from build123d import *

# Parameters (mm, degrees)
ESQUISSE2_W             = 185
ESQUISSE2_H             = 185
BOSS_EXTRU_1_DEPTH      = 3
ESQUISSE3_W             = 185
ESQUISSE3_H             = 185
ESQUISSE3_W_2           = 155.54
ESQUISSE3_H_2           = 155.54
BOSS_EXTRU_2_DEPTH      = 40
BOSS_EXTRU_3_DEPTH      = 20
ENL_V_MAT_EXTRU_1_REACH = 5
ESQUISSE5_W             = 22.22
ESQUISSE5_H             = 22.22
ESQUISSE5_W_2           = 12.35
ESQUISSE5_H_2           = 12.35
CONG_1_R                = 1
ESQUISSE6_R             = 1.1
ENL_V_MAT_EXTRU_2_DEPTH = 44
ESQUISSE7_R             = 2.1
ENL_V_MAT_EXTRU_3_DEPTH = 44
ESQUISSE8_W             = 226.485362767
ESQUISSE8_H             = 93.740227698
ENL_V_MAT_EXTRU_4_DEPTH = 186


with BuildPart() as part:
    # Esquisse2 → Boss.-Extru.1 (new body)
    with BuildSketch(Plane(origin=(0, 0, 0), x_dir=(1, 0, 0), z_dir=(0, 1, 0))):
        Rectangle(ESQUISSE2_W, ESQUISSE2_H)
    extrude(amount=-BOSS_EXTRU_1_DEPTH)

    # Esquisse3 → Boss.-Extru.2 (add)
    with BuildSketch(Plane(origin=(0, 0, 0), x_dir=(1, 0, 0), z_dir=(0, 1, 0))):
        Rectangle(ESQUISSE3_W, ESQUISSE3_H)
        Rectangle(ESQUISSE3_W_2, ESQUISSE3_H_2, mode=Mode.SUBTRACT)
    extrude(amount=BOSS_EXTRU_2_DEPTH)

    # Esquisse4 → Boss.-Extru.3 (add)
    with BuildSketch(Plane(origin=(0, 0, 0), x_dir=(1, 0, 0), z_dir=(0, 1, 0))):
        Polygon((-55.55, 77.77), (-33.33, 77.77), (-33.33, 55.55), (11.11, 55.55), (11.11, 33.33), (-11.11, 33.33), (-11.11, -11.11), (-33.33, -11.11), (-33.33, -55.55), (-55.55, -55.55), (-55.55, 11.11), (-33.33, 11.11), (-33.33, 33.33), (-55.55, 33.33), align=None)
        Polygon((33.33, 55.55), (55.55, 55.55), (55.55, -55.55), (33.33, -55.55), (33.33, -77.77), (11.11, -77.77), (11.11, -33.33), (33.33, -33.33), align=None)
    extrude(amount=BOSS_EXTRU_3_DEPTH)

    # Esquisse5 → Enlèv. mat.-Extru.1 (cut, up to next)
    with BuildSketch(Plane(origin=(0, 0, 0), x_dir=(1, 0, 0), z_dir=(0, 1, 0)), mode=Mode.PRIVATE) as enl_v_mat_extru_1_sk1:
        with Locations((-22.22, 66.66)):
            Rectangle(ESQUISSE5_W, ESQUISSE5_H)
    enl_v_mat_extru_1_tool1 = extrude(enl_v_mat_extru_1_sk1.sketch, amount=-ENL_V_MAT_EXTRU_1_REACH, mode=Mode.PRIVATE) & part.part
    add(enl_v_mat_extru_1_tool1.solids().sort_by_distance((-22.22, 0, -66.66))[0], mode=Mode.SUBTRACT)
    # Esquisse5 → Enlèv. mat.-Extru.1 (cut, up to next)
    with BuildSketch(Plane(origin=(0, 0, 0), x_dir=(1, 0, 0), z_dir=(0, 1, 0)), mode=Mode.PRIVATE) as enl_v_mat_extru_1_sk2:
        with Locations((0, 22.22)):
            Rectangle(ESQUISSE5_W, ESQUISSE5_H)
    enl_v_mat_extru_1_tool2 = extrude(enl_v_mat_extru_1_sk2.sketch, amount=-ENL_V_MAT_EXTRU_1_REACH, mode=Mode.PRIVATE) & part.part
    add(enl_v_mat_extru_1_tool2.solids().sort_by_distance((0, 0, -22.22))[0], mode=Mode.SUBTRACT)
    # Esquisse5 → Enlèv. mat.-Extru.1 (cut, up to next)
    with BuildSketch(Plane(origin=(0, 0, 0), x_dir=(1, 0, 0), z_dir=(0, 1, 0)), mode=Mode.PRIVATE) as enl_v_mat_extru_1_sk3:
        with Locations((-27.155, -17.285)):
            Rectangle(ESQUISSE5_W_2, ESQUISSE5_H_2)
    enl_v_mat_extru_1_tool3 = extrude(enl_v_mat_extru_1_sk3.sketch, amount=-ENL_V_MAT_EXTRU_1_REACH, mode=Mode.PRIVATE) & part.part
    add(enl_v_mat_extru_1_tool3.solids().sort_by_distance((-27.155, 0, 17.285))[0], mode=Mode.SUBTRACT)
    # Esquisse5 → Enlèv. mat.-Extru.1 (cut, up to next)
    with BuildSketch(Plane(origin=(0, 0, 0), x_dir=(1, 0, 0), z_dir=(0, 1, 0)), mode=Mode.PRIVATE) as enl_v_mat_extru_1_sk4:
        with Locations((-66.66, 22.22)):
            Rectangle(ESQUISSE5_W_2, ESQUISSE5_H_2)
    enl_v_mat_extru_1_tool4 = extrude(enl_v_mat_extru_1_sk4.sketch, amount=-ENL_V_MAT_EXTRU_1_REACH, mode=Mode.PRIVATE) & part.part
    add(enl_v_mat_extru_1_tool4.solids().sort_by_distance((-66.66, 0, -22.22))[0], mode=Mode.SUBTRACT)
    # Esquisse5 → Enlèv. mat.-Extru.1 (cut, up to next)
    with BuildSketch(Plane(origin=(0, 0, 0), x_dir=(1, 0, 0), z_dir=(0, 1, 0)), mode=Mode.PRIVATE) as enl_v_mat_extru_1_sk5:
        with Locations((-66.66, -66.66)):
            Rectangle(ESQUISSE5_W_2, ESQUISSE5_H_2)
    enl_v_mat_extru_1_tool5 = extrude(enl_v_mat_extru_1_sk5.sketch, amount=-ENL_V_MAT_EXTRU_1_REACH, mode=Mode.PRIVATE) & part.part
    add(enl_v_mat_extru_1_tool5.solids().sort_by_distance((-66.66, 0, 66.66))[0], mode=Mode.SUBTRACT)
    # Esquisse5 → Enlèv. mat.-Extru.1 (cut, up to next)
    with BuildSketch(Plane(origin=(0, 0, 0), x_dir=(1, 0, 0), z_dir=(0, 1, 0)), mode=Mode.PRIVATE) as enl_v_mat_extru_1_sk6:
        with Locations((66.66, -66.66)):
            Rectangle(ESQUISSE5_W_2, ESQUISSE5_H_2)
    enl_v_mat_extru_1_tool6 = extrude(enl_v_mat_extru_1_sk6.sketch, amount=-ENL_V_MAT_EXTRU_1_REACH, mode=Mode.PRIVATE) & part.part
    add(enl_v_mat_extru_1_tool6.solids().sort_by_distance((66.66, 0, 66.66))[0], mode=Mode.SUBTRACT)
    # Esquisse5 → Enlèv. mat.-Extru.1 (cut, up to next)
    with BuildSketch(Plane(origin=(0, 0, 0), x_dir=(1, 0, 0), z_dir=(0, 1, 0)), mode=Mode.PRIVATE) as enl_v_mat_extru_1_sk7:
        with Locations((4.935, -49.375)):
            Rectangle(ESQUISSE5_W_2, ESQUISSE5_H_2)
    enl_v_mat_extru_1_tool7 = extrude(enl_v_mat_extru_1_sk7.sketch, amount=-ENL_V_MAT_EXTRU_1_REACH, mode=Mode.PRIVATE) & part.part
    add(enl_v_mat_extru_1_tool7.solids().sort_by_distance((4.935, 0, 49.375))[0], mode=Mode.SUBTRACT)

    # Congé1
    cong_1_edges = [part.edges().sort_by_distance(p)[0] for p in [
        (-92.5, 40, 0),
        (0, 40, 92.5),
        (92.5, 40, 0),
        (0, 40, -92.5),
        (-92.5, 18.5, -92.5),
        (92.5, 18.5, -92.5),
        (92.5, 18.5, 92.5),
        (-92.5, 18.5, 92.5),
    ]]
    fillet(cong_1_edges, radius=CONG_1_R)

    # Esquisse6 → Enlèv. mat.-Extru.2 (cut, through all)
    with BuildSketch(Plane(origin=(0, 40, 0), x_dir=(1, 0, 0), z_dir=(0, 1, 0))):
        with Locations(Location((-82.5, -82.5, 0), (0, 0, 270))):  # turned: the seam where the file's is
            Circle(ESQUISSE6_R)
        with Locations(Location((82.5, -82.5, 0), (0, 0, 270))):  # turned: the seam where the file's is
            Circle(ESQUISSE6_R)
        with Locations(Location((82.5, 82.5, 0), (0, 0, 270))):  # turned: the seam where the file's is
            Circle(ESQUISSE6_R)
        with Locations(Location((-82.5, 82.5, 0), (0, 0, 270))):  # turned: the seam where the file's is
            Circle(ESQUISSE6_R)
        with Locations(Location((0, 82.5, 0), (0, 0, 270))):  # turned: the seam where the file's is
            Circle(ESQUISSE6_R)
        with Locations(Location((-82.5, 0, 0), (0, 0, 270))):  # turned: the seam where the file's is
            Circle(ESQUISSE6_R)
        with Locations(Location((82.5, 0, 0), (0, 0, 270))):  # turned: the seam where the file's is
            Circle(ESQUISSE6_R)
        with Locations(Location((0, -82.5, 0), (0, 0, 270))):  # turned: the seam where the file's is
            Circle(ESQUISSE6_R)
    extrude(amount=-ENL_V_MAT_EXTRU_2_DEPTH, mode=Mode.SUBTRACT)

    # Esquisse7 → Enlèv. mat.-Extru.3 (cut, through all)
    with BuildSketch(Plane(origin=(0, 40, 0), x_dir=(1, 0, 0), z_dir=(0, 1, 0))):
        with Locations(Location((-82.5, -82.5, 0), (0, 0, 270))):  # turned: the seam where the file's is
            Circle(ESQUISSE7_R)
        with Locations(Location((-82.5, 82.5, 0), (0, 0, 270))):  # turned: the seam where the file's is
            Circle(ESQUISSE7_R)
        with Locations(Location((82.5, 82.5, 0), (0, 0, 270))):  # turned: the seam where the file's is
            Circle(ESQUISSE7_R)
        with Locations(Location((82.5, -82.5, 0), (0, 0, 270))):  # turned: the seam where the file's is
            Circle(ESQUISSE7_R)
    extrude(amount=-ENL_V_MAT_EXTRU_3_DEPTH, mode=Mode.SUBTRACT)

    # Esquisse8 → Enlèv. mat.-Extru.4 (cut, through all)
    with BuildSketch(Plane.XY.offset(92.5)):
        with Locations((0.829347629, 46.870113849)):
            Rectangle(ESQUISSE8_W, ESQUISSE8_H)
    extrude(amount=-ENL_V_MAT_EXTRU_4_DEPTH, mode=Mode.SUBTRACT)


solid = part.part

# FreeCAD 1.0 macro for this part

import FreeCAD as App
import Part
import Sketcher


def edges_at(feature, points):
    """Names of the edges that pass closest to the given points."""
    edges = feature.Shape.Edges
    near = lambda p: min(range(len(edges)), key=lambda i: edges[i].distToShape(Part.Vertex(*p))[0])
    return sorted({f"Edge{near(p) + 1}" for p in points})

doc = App.newDocument("Part")
params = doc.addObject("Spreadsheet::Sheet", "Params")
for row, (alias, value) in enumerate([
    ("sketch1_width", "185 mm"),
    ("pad1_length", "3 mm"),
    ("sketch2_width", "185 mm"),
    ("sketch2_width2", "155.54 mm"),
    ("pad2_length", "40 mm"),
    ("sketch3_height", "111.1 mm"),
    ("pad3_length", "20 mm"),
    ("sketch4_width", "22.22 mm"),
    ("sketch5_width", "22.22 mm"),
    ("sketch6_width", "12.35 mm"),
    ("sketch7_width", "12.35 mm"),
    ("sketch8_width", "12.35 mm"),
    ("sketch9_width", "12.35 mm"),
    ("sketch10_width", "12.35 mm"),
    ("fillet_radius", "1 mm"),
    ("sketch11_diameter", "2.2 mm"),
    ("sketch12_diameter", "4.2 mm"),
], start=1):
    params.set(f"A{row}", alias)
    params.set(f"B{row}", "=" + value)
    params.setAlias(f"B{row}", alias)

body = doc.addObject("PartDesign::Body", "Body")

# Sketch on XZ plane
sketch1 = doc.addObject("Sketcher::SketchObject", "Sketch")
body.addObject(sketch1)
sketch1.AttachmentSupport = (doc.XZ_Plane, [""])
sketch1.MapMode = "FlatFace"
sketch1.addGeometry(Part.LineSegment(App.Vector(-92.5, -92.5, 0), App.Vector(-92.5, 92.5, 0)), False)
sketch1.addGeometry(Part.LineSegment(App.Vector(-92.5, 92.5, 0), App.Vector(92.5, 92.5, 0)), False)
sketch1.addGeometry(Part.LineSegment(App.Vector(92.5, 92.5, 0), App.Vector(92.5, -92.5, 0)), False)
sketch1.addGeometry(Part.LineSegment(App.Vector(92.5, -92.5, 0), App.Vector(-92.5, -92.5, 0)), False)
sketch1.addConstraint(Sketcher.Constraint("Coincident", 0, 2, 1, 1))
sketch1.addConstraint(Sketcher.Constraint("Coincident", 1, 2, 2, 1))
sketch1.addConstraint(Sketcher.Constraint("Coincident", 2, 2, 3, 1))
sketch1.addConstraint(Sketcher.Constraint("Coincident", 3, 2, 0, 1))
sketch1.addConstraint(Sketcher.Constraint("Vertical", 0))
sketch1.addConstraint(Sketcher.Constraint("Horizontal", 1))
sketch1.addConstraint(Sketcher.Constraint("Vertical", 2))
sketch1.addConstraint(Sketcher.Constraint("Horizontal", 3))
sketch1.addConstraint(Sketcher.Constraint("Symmetric", 0, 2, 2, 2, -1, 1))
sketch1.addConstraint(Sketcher.Constraint("Equal", 3, 0))
sketch1.addConstraint(Sketcher.Constraint("DistanceX", 1, 1, 1, 2, 185.0))
sketch1.setExpression("Constraints[10]", "Params.sketch1_width")
pad1 = doc.addObject("PartDesign::Pad", "Pad")
body.addObject(pad1)
pad1.Profile = sketch1
pad1.setExpression("Length", "Params.pad1_length")

# Sketch on XZ plane
sketch2 = doc.addObject("Sketcher::SketchObject", "Sketch001")
body.addObject(sketch2)
sketch2.AttachmentSupport = (doc.XZ_Plane, [""])
sketch2.MapMode = "FlatFace"
sketch2.addGeometry(Part.LineSegment(App.Vector(-92.5, -92.5, 0), App.Vector(-92.5, 92.5, 0)), False)
sketch2.addGeometry(Part.LineSegment(App.Vector(-92.5, 92.5, 0), App.Vector(92.5, 92.5, 0)), False)
sketch2.addGeometry(Part.LineSegment(App.Vector(92.5, 92.5, 0), App.Vector(92.5, -92.5, 0)), False)
sketch2.addGeometry(Part.LineSegment(App.Vector(92.5, -92.5, 0), App.Vector(-92.5, -92.5, 0)), False)
sketch2.addGeometry(Part.LineSegment(App.Vector(77.77, 77.77, 0), App.Vector(-77.77, 77.77, 0)), False)
sketch2.addGeometry(Part.LineSegment(App.Vector(-77.77, 77.77, 0), App.Vector(-77.77, -77.77, 0)), False)
sketch2.addGeometry(Part.LineSegment(App.Vector(-77.77, -77.77, 0), App.Vector(77.77, -77.77, 0)), False)
sketch2.addGeometry(Part.LineSegment(App.Vector(77.77, -77.77, 0), App.Vector(77.77, 77.77, 0)), False)
sketch2.addConstraint(Sketcher.Constraint("Coincident", 0, 2, 1, 1))
sketch2.addConstraint(Sketcher.Constraint("Coincident", 1, 2, 2, 1))
sketch2.addConstraint(Sketcher.Constraint("Coincident", 2, 2, 3, 1))
sketch2.addConstraint(Sketcher.Constraint("Coincident", 3, 2, 0, 1))
sketch2.addConstraint(Sketcher.Constraint("Coincident", 4, 2, 5, 1))
sketch2.addConstraint(Sketcher.Constraint("Coincident", 5, 2, 6, 1))
sketch2.addConstraint(Sketcher.Constraint("Coincident", 6, 2, 7, 1))
sketch2.addConstraint(Sketcher.Constraint("Coincident", 7, 2, 4, 1))
sketch2.addConstraint(Sketcher.Constraint("Vertical", 0))
sketch2.addConstraint(Sketcher.Constraint("Horizontal", 1))
sketch2.addConstraint(Sketcher.Constraint("Vertical", 2))
sketch2.addConstraint(Sketcher.Constraint("Horizontal", 3))
sketch2.addConstraint(Sketcher.Constraint("Horizontal", 4))
sketch2.addConstraint(Sketcher.Constraint("Vertical", 5))
sketch2.addConstraint(Sketcher.Constraint("Horizontal", 6))
sketch2.addConstraint(Sketcher.Constraint("Vertical", 7))
sketch2.addConstraint(Sketcher.Constraint("Symmetric", 0, 2, 2, 2, -1, 1))
sketch2.addConstraint(Sketcher.Constraint("Symmetric", 4, 2, 6, 2, -1, 1))
sketch2.addConstraint(Sketcher.Constraint("Equal", 3, 0))
sketch2.addConstraint(Sketcher.Constraint("Equal", 6, 5))
sketch2.addConstraint(Sketcher.Constraint("DistanceX", 1, 1, 1, 2, 185.0))
sketch2.addConstraint(Sketcher.Constraint("DistanceX", 4, 2, 4, 1, 155.54))
sketch2.setExpression("Constraints[20]", "Params.sketch2_width")
sketch2.setExpression("Constraints[21]", "Params.sketch2_width2")
pad2 = doc.addObject("PartDesign::Pad", "Pad001")
body.addObject(pad2)
pad2.Profile = sketch2
pad2.setExpression("Length", "Params.pad2_length")
pad2.Reversed = True

# Sketch on XZ plane
sketch3 = doc.addObject("Sketcher::SketchObject", "Sketch002")
body.addObject(sketch3)
sketch3.AttachmentSupport = (doc.XZ_Plane, [""])
sketch3.MapMode = "FlatFace"
sketch3.addGeometry(Part.LineSegment(App.Vector(-33.33, -77.77, 0), App.Vector(-55.55, -77.77, 0)), False)
sketch3.addGeometry(Part.LineSegment(App.Vector(-55.55, -77.77, 0), App.Vector(-55.55, -33.33, 0)), False)
sketch3.addGeometry(Part.LineSegment(App.Vector(-55.55, -33.33, 0), App.Vector(-33.33, -33.33, 0)), False)
sketch3.addGeometry(Part.LineSegment(App.Vector(-33.33, -33.33, 0), App.Vector(-33.33, -11.11, 0)), False)
sketch3.addGeometry(Part.LineSegment(App.Vector(-33.33, -11.11, 0), App.Vector(-55.55, -11.11, 0)), False)
sketch3.addGeometry(Part.LineSegment(App.Vector(-55.55, -11.11, 0), App.Vector(-55.55, 55.55, 0)), False)
sketch3.addGeometry(Part.LineSegment(App.Vector(-55.55, 55.55, 0), App.Vector(-33.33, 55.55, 0)), False)
sketch3.addGeometry(Part.LineSegment(App.Vector(-33.33, 55.55, 0), App.Vector(-33.33, 11.11, 0)), False)
sketch3.addGeometry(Part.LineSegment(App.Vector(-33.33, 11.11, 0), App.Vector(-11.11, 11.11, 0)), False)
sketch3.addGeometry(Part.LineSegment(App.Vector(-11.11, 11.11, 0), App.Vector(-11.11, -33.33, 0)), False)
sketch3.addGeometry(Part.LineSegment(App.Vector(-11.11, -33.33, 0), App.Vector(11.11, -33.33, 0)), False)
sketch3.addGeometry(Part.LineSegment(App.Vector(11.11, -33.33, 0), App.Vector(11.11, -55.55, 0)), False)
sketch3.addGeometry(Part.LineSegment(App.Vector(11.11, -55.55, 0), App.Vector(-33.33, -55.55, 0)), False)
sketch3.addGeometry(Part.LineSegment(App.Vector(-33.33, -55.55, 0), App.Vector(-33.33, -77.77, 0)), False)
sketch3.addGeometry(Part.LineSegment(App.Vector(55.55, -55.55, 0), App.Vector(33.33, -55.55, 0)), False)
sketch3.addGeometry(Part.LineSegment(App.Vector(33.33, -55.55, 0), App.Vector(33.33, 33.33, 0)), False)
sketch3.addGeometry(Part.LineSegment(App.Vector(33.33, 33.33, 0), App.Vector(11.11, 33.33, 0)), False)
sketch3.addGeometry(Part.LineSegment(App.Vector(11.11, 33.33, 0), App.Vector(11.11, 77.77, 0)), False)
sketch3.addGeometry(Part.LineSegment(App.Vector(11.11, 77.77, 0), App.Vector(33.33, 77.77, 0)), False)
sketch3.addGeometry(Part.LineSegment(App.Vector(33.33, 77.77, 0), App.Vector(33.33, 55.55, 0)), False)
sketch3.addGeometry(Part.LineSegment(App.Vector(33.33, 55.55, 0), App.Vector(55.55, 55.55, 0)), False)
sketch3.addGeometry(Part.LineSegment(App.Vector(55.55, 55.55, 0), App.Vector(55.55, -55.55, 0)), False)
sketch3.addConstraint(Sketcher.Constraint("Coincident", 0, 2, 1, 1))
sketch3.addConstraint(Sketcher.Constraint("Coincident", 1, 2, 2, 1))
sketch3.addConstraint(Sketcher.Constraint("Coincident", 2, 2, 3, 1))
sketch3.addConstraint(Sketcher.Constraint("Coincident", 3, 2, 4, 1))
sketch3.addConstraint(Sketcher.Constraint("Coincident", 4, 2, 5, 1))
sketch3.addConstraint(Sketcher.Constraint("Coincident", 5, 2, 6, 1))
sketch3.addConstraint(Sketcher.Constraint("Coincident", 6, 2, 7, 1))
sketch3.addConstraint(Sketcher.Constraint("Coincident", 7, 2, 8, 1))
sketch3.addConstraint(Sketcher.Constraint("Coincident", 8, 2, 9, 1))
sketch3.addConstraint(Sketcher.Constraint("Coincident", 9, 2, 10, 1))
sketch3.addConstraint(Sketcher.Constraint("Coincident", 10, 2, 11, 1))
sketch3.addConstraint(Sketcher.Constraint("Coincident", 11, 2, 12, 1))
sketch3.addConstraint(Sketcher.Constraint("Coincident", 12, 2, 13, 1))
sketch3.addConstraint(Sketcher.Constraint("Coincident", 13, 2, 0, 1))
sketch3.addConstraint(Sketcher.Constraint("Coincident", 14, 2, 15, 1))
sketch3.addConstraint(Sketcher.Constraint("Coincident", 15, 2, 16, 1))
sketch3.addConstraint(Sketcher.Constraint("Coincident", 16, 2, 17, 1))
sketch3.addConstraint(Sketcher.Constraint("Coincident", 17, 2, 18, 1))
sketch3.addConstraint(Sketcher.Constraint("Coincident", 18, 2, 19, 1))
sketch3.addConstraint(Sketcher.Constraint("Coincident", 19, 2, 20, 1))
sketch3.addConstraint(Sketcher.Constraint("Coincident", 20, 2, 21, 1))
sketch3.addConstraint(Sketcher.Constraint("Coincident", 21, 2, 14, 1))
sketch3.addConstraint(Sketcher.Constraint("Horizontal", 0))
sketch3.addConstraint(Sketcher.Constraint("Vertical", 1))
sketch3.addConstraint(Sketcher.Constraint("Horizontal", 2))
sketch3.addConstraint(Sketcher.Constraint("Vertical", 3))
sketch3.addConstraint(Sketcher.Constraint("Horizontal", 4))
sketch3.addConstraint(Sketcher.Constraint("Vertical", 5))
sketch3.addConstraint(Sketcher.Constraint("Horizontal", 6))
sketch3.addConstraint(Sketcher.Constraint("Vertical", 7))
sketch3.addConstraint(Sketcher.Constraint("Horizontal", 8))
sketch3.addConstraint(Sketcher.Constraint("Vertical", 9))
sketch3.addConstraint(Sketcher.Constraint("Horizontal", 10))
sketch3.addConstraint(Sketcher.Constraint("Vertical", 11))
sketch3.addConstraint(Sketcher.Constraint("Horizontal", 12))
sketch3.addConstraint(Sketcher.Constraint("Vertical", 13))
sketch3.addConstraint(Sketcher.Constraint("Horizontal", 14))
sketch3.addConstraint(Sketcher.Constraint("Vertical", 15))
sketch3.addConstraint(Sketcher.Constraint("Horizontal", 16))
sketch3.addConstraint(Sketcher.Constraint("Vertical", 17))
sketch3.addConstraint(Sketcher.Constraint("Horizontal", 18))
sketch3.addConstraint(Sketcher.Constraint("Vertical", 19))
sketch3.addConstraint(Sketcher.Constraint("Horizontal", 20))
sketch3.addConstraint(Sketcher.Constraint("Vertical", 21))
sketch3.addConstraint(Sketcher.Constraint("Symmetric", 6, 2, 14, 2, -1, 1))
sketch3.addConstraint(Sketcher.Constraint("Symmetric", 2, 2, 15, 2, -1, 1))
sketch3.addConstraint(Sketcher.Constraint("Symmetric", 9, 2, 16, 2, -1, 1))
sketch3.addConstraint(Sketcher.Constraint("Symmetric", 13, 2, 18, 2, -1, 1))
sketch3.addConstraint(Sketcher.Constraint("Symmetric", 12, 2, 14, 2, -2))
sketch3.addConstraint(Sketcher.Constraint("Symmetric", 5, 2, 20, 2, -2))
sketch3.addConstraint(Sketcher.Constraint("Vertical", 1, 2, 4, 2))
sketch3.addConstraint(Sketcher.Constraint("Vertical", 11, 2, 16, 2))
sketch3.addConstraint(Sketcher.Constraint("Equal", 6, 8))
sketch3.addConstraint(Sketcher.Constraint("Equal", 8, 10))
sketch3.addConstraint(Sketcher.Constraint("Equal", 12, 1))
sketch3.addConstraint(Sketcher.Constraint("Equal", 20, 3))
sketch3.addConstraint(Sketcher.Constraint("Equal", 1, 7))
sketch3.addConstraint(Sketcher.Constraint("Equal", 7, 9))
sketch3.addConstraint(Sketcher.Constraint("Equal", 3, 11))
sketch3.addConstraint(Sketcher.Constraint("DistanceY", 21, 2, 21, 1, 111.1))
sketch3.setExpression("Constraints[59]", "Params.sketch3_height")
pad3 = doc.addObject("PartDesign::Pad", "Pad002")
body.addObject(pad3)
pad3.Profile = sketch3
pad3.setExpression("Length", "Params.pad3_length")
pad3.Reversed = True

# Sketch on XZ plane
sketch4 = doc.addObject("Sketcher::SketchObject", "Sketch003")
body.addObject(sketch4)
sketch4.AttachmentSupport = (doc.XZ_Plane, [""])
sketch4.MapMode = "FlatFace"
sketch4.addGeometry(Part.LineSegment(App.Vector(-33.33, -77.77, 0), App.Vector(-33.33, -55.55, 0)), False)
sketch4.addGeometry(Part.LineSegment(App.Vector(-33.33, -55.55, 0), App.Vector(-11.11, -55.55, 0)), False)
sketch4.addGeometry(Part.LineSegment(App.Vector(-11.11, -55.55, 0), App.Vector(-11.11, -77.77, 0)), False)
sketch4.addGeometry(Part.LineSegment(App.Vector(-11.11, -77.77, 0), App.Vector(-33.33, -77.77, 0)), False)
sketch4.addConstraint(Sketcher.Constraint("Coincident", 0, 2, 1, 1))
sketch4.addConstraint(Sketcher.Constraint("Coincident", 1, 2, 2, 1))
sketch4.addConstraint(Sketcher.Constraint("Coincident", 2, 2, 3, 1))
sketch4.addConstraint(Sketcher.Constraint("Coincident", 3, 2, 0, 1))
sketch4.addConstraint(Sketcher.Constraint("Vertical", 0))
sketch4.addConstraint(Sketcher.Constraint("Horizontal", 1))
sketch4.addConstraint(Sketcher.Constraint("Vertical", 2))
sketch4.addConstraint(Sketcher.Constraint("Horizontal", 3))
sketch4.addConstraint(Sketcher.Constraint("Equal", 3, 0))
sketch4.addConstraint(Sketcher.Constraint("DistanceX", 1, 1, 1, 2, 22.22))
sketch4.addConstraint(Sketcher.Constraint("DistanceX", 0, 2, -1, 1, 33.33))
sketch4.addConstraint(Sketcher.Constraint("DistanceY", 0, 2, -1, 1, 55.55))
sketch4.setExpression("Constraints[9]", "Params.sketch4_width")
pocket1 = doc.addObject("PartDesign::Pocket", "Pocket")
body.addObject(pocket1)
pocket1.Profile = sketch4
pocket1.Type = "UpToFirst"
pocket1.Reversed = True

# Sketch on XZ plane
sketch5 = doc.addObject("Sketcher::SketchObject", "Sketch004")
body.addObject(sketch5)
sketch5.AttachmentSupport = (doc.XZ_Plane, [""])
sketch5.MapMode = "FlatFace"
sketch5.addGeometry(Part.LineSegment(App.Vector(-11.11, -33.33, 0), App.Vector(-11.11, -11.11, 0)), False)
sketch5.addGeometry(Part.LineSegment(App.Vector(-11.11, -11.11, 0), App.Vector(11.11, -11.11, 0)), False)
sketch5.addGeometry(Part.LineSegment(App.Vector(11.11, -11.11, 0), App.Vector(11.11, -33.33, 0)), False)
sketch5.addGeometry(Part.LineSegment(App.Vector(11.11, -33.33, 0), App.Vector(-11.11, -33.33, 0)), False)
sketch5.addConstraint(Sketcher.Constraint("Coincident", 0, 2, 1, 1))
sketch5.addConstraint(Sketcher.Constraint("Coincident", 1, 2, 2, 1))
sketch5.addConstraint(Sketcher.Constraint("Coincident", 2, 2, 3, 1))
sketch5.addConstraint(Sketcher.Constraint("Coincident", 3, 2, 0, 1))
sketch5.addConstraint(Sketcher.Constraint("Vertical", 0))
sketch5.addConstraint(Sketcher.Constraint("Horizontal", 1))
sketch5.addConstraint(Sketcher.Constraint("Vertical", 2))
sketch5.addConstraint(Sketcher.Constraint("Horizontal", 3))
sketch5.addConstraint(Sketcher.Constraint("Equal", 3, 0))
sketch5.addConstraint(Sketcher.Constraint("DistanceX", 1, 1, 1, 2, 22.22))
sketch5.addConstraint(Sketcher.Constraint("DistanceX", 0, 2, -1, 1, 11.11))
sketch5.addConstraint(Sketcher.Constraint("DistanceY", 0, 2, -1, 1, 11.11))
sketch5.setExpression("Constraints[9]", "Params.sketch5_width")
pocket2 = doc.addObject("PartDesign::Pocket", "Pocket001")
body.addObject(pocket2)
pocket2.Profile = sketch5
pocket2.Type = "UpToFirst"
pocket2.Reversed = True

# Sketch on XZ plane
sketch6 = doc.addObject("Sketcher::SketchObject", "Sketch005")
body.addObject(sketch6)
sketch6.AttachmentSupport = (doc.XZ_Plane, [""])
sketch6.MapMode = "FlatFace"
sketch6.addGeometry(Part.LineSegment(App.Vector(-33.33, 11.11, 0), App.Vector(-33.33, 23.46, 0)), False)
sketch6.addGeometry(Part.LineSegment(App.Vector(-33.33, 23.46, 0), App.Vector(-20.98, 23.46, 0)), False)
sketch6.addGeometry(Part.LineSegment(App.Vector(-20.98, 23.46, 0), App.Vector(-20.98, 11.11, 0)), False)
sketch6.addGeometry(Part.LineSegment(App.Vector(-20.98, 11.11, 0), App.Vector(-33.33, 11.11, 0)), False)
sketch6.addConstraint(Sketcher.Constraint("Coincident", 0, 2, 1, 1))
sketch6.addConstraint(Sketcher.Constraint("Coincident", 1, 2, 2, 1))
sketch6.addConstraint(Sketcher.Constraint("Coincident", 2, 2, 3, 1))
sketch6.addConstraint(Sketcher.Constraint("Coincident", 3, 2, 0, 1))
sketch6.addConstraint(Sketcher.Constraint("Vertical", 0))
sketch6.addConstraint(Sketcher.Constraint("Horizontal", 1))
sketch6.addConstraint(Sketcher.Constraint("Vertical", 2))
sketch6.addConstraint(Sketcher.Constraint("Horizontal", 3))
sketch6.addConstraint(Sketcher.Constraint("Equal", 3, 0))
sketch6.addConstraint(Sketcher.Constraint("DistanceX", 1, 1, 1, 2, 12.35))
sketch6.addConstraint(Sketcher.Constraint("DistanceX", 0, 2, -1, 1, 33.33))
sketch6.addConstraint(Sketcher.Constraint("DistanceY", -1, 1, 0, 2, 23.46))
sketch6.setExpression("Constraints[9]", "Params.sketch6_width")
pocket3 = doc.addObject("PartDesign::Pocket", "Pocket002")
body.addObject(pocket3)
pocket3.Profile = sketch6
pocket3.Type = "UpToFirst"
pocket3.Reversed = True

# Sketch on XZ plane
sketch7 = doc.addObject("Sketcher::SketchObject", "Sketch006")
body.addObject(sketch7)
sketch7.AttachmentSupport = (doc.XZ_Plane, [""])
sketch7.MapMode = "FlatFace"
sketch7.addGeometry(Part.LineSegment(App.Vector(-72.835, -28.395, 0), App.Vector(-72.835, -16.045, 0)), False)
sketch7.addGeometry(Part.LineSegment(App.Vector(-72.835, -16.045, 0), App.Vector(-60.485, -16.045, 0)), False)
sketch7.addGeometry(Part.LineSegment(App.Vector(-60.485, -16.045, 0), App.Vector(-60.485, -28.395, 0)), False)
sketch7.addGeometry(Part.LineSegment(App.Vector(-60.485, -28.395, 0), App.Vector(-72.835, -28.395, 0)), False)
sketch7.addConstraint(Sketcher.Constraint("Coincident", 0, 2, 1, 1))
sketch7.addConstraint(Sketcher.Constraint("Coincident", 1, 2, 2, 1))
sketch7.addConstraint(Sketcher.Constraint("Coincident", 2, 2, 3, 1))
sketch7.addConstraint(Sketcher.Constraint("Coincident", 3, 2, 0, 1))
sketch7.addConstraint(Sketcher.Constraint("Vertical", 0))
sketch7.addConstraint(Sketcher.Constraint("Horizontal", 1))
sketch7.addConstraint(Sketcher.Constraint("Vertical", 2))
sketch7.addConstraint(Sketcher.Constraint("Horizontal", 3))
sketch7.addConstraint(Sketcher.Constraint("Equal", 3, 0))
sketch7.addConstraint(Sketcher.Constraint("DistanceX", 1, 1, 1, 2, 12.35))
sketch7.addConstraint(Sketcher.Constraint("DistanceX", 0, 2, -1, 1, 72.835))
sketch7.addConstraint(Sketcher.Constraint("DistanceY", 0, 2, -1, 1, 16.045))
sketch7.setExpression("Constraints[9]", "Params.sketch7_width")
pocket4 = doc.addObject("PartDesign::Pocket", "Pocket003")
body.addObject(pocket4)
pocket4.Profile = sketch7
pocket4.Type = "UpToFirst"
pocket4.Reversed = True

# Sketch on XZ plane
sketch8 = doc.addObject("Sketcher::SketchObject", "Sketch007")
body.addObject(sketch8)
sketch8.AttachmentSupport = (doc.XZ_Plane, [""])
sketch8.MapMode = "FlatFace"
sketch8.addGeometry(Part.LineSegment(App.Vector(-72.835, 60.485, 0), App.Vector(-72.835, 72.835, 0)), False)
sketch8.addGeometry(Part.LineSegment(App.Vector(-72.835, 72.835, 0), App.Vector(-60.485, 72.835, 0)), False)
sketch8.addGeometry(Part.LineSegment(App.Vector(-60.485, 72.835, 0), App.Vector(-60.485, 60.485, 0)), False)
sketch8.addGeometry(Part.LineSegment(App.Vector(-60.485, 60.485, 0), App.Vector(-72.835, 60.485, 0)), False)
sketch8.addConstraint(Sketcher.Constraint("Coincident", 0, 2, 1, 1))
sketch8.addConstraint(Sketcher.Constraint("Coincident", 1, 2, 2, 1))
sketch8.addConstraint(Sketcher.Constraint("Coincident", 2, 2, 3, 1))
sketch8.addConstraint(Sketcher.Constraint("Coincident", 3, 2, 0, 1))
sketch8.addConstraint(Sketcher.Constraint("Vertical", 0))
sketch8.addConstraint(Sketcher.Constraint("Horizontal", 1))
sketch8.addConstraint(Sketcher.Constraint("Vertical", 2))
sketch8.addConstraint(Sketcher.Constraint("Horizontal", 3))
sketch8.addConstraint(Sketcher.Constraint("Equal", 3, 0))
sketch8.addConstraint(Sketcher.Constraint("DistanceX", 1, 1, 1, 2, 12.35))
sketch8.addConstraint(Sketcher.Constraint("DistanceX", 0, 2, -1, 1, 72.835))
sketch8.addConstraint(Sketcher.Constraint("DistanceY", -1, 1, 0, 2, 72.835))
sketch8.setExpression("Constraints[9]", "Params.sketch8_width")
pocket5 = doc.addObject("PartDesign::Pocket", "Pocket004")
body.addObject(pocket5)
pocket5.Profile = sketch8
pocket5.Type = "UpToFirst"
pocket5.Reversed = True

# Sketch on XZ plane
sketch9 = doc.addObject("Sketcher::SketchObject", "Sketch008")
body.addObject(sketch9)
sketch9.AttachmentSupport = (doc.XZ_Plane, [""])
sketch9.MapMode = "FlatFace"
sketch9.addGeometry(Part.LineSegment(App.Vector(60.485, 60.485, 0), App.Vector(60.485, 72.835, 0)), False)
sketch9.addGeometry(Part.LineSegment(App.Vector(60.485, 72.835, 0), App.Vector(72.835, 72.835, 0)), False)
sketch9.addGeometry(Part.LineSegment(App.Vector(72.835, 72.835, 0), App.Vector(72.835, 60.485, 0)), False)
sketch9.addGeometry(Part.LineSegment(App.Vector(72.835, 60.485, 0), App.Vector(60.485, 60.485, 0)), False)
sketch9.addConstraint(Sketcher.Constraint("Coincident", 0, 2, 1, 1))
sketch9.addConstraint(Sketcher.Constraint("Coincident", 1, 2, 2, 1))
sketch9.addConstraint(Sketcher.Constraint("Coincident", 2, 2, 3, 1))
sketch9.addConstraint(Sketcher.Constraint("Coincident", 3, 2, 0, 1))
sketch9.addConstraint(Sketcher.Constraint("Vertical", 0))
sketch9.addConstraint(Sketcher.Constraint("Horizontal", 1))
sketch9.addConstraint(Sketcher.Constraint("Vertical", 2))
sketch9.addConstraint(Sketcher.Constraint("Horizontal", 3))
sketch9.addConstraint(Sketcher.Constraint("Equal", 3, 0))
sketch9.addConstraint(Sketcher.Constraint("DistanceX", 1, 1, 1, 2, 12.35))
sketch9.addConstraint(Sketcher.Constraint("DistanceX", -1, 1, 0, 2, 60.485))
sketch9.addConstraint(Sketcher.Constraint("DistanceY", -1, 1, 0, 2, 72.835))
sketch9.setExpression("Constraints[9]", "Params.sketch9_width")
pocket6 = doc.addObject("PartDesign::Pocket", "Pocket005")
body.addObject(pocket6)
pocket6.Profile = sketch9
pocket6.Type = "UpToFirst"
pocket6.Reversed = True

# Sketch on XZ plane
sketch10 = doc.addObject("Sketcher::SketchObject", "Sketch009")
body.addObject(sketch10)
sketch10.AttachmentSupport = (doc.XZ_Plane, [""])
sketch10.MapMode = "FlatFace"
sketch10.addGeometry(Part.LineSegment(App.Vector(-1.24, 43.2, 0), App.Vector(-1.24, 55.55, 0)), False)
sketch10.addGeometry(Part.LineSegment(App.Vector(-1.24, 55.55, 0), App.Vector(11.11, 55.55, 0)), False)
sketch10.addGeometry(Part.LineSegment(App.Vector(11.11, 55.55, 0), App.Vector(11.11, 43.2, 0)), False)
sketch10.addGeometry(Part.LineSegment(App.Vector(11.11, 43.2, 0), App.Vector(-1.24, 43.2, 0)), False)
sketch10.addConstraint(Sketcher.Constraint("Coincident", 0, 2, 1, 1))
sketch10.addConstraint(Sketcher.Constraint("Coincident", 1, 2, 2, 1))
sketch10.addConstraint(Sketcher.Constraint("Coincident", 2, 2, 3, 1))
sketch10.addConstraint(Sketcher.Constraint("Coincident", 3, 2, 0, 1))
sketch10.addConstraint(Sketcher.Constraint("Vertical", 0))
sketch10.addConstraint(Sketcher.Constraint("Horizontal", 1))
sketch10.addConstraint(Sketcher.Constraint("Vertical", 2))
sketch10.addConstraint(Sketcher.Constraint("Horizontal", 3))
sketch10.addConstraint(Sketcher.Constraint("Equal", 3, 0))
sketch10.addConstraint(Sketcher.Constraint("DistanceX", 1, 1, 1, 2, 12.35))
sketch10.addConstraint(Sketcher.Constraint("DistanceY", -1, 1, 2, 2, 43.2))
sketch10.addConstraint(Sketcher.Constraint("DistanceX", 0, 2, -1, 1, 1.24))
sketch10.setExpression("Constraints[9]", "Params.sketch10_width")
pocket7 = doc.addObject("PartDesign::Pocket", "Pocket006")
body.addObject(pocket7)
pocket7.Profile = sketch10
pocket7.Type = "UpToFirst"
pocket7.Reversed = True
doc.recompute()

fillet = doc.addObject("PartDesign::Fillet", "Fillet")
body.addObject(fillet)
fillet.Base = (pocket7, edges_at(pocket7, [
    (-92.5, 40, 0),
    (0, 40, 92.5),
    (92.5, 40, 0),
    (0, 40, -92.5),
    (-92.5, 18.5, -92.5),
    (92.5, 18.5, -92.5),
    (92.5, 18.5, 92.5),
    (-92.5, 18.5, 92.5),
]))
fillet.setExpression("Radius", "Params.fillet_radius")

# Sketch on XZ plane
sketch11 = doc.addObject("Sketcher::SketchObject", "Sketch010")
body.addObject(sketch11)
sketch11.AttachmentSupport = (doc.XZ_Plane, [""])
sketch11.MapMode = "FlatFace"
sketch11.AttachmentOffset = App.Placement(App.Vector(0, 0, -40), App.Rotation())
sketch11.addGeometry(Part.Circle(App.Vector(-82.5, 82.5, 0), App.Vector(0, 0, 1), 1.1), False)
sketch11.addGeometry(Part.Circle(App.Vector(82.5, 82.5, 0), App.Vector(0, 0, 1), 1.1), False)
sketch11.addGeometry(Part.Circle(App.Vector(82.5, -82.5, 0), App.Vector(0, 0, 1), 1.1), False)
sketch11.addGeometry(Part.Circle(App.Vector(-82.5, -82.5, 0), App.Vector(0, 0, 1), 1.1), False)
sketch11.addGeometry(Part.Circle(App.Vector(0, -82.5, 0), App.Vector(0, 0, 1), 1.1), False)
sketch11.addGeometry(Part.Circle(App.Vector(-82.5, 0, 0), App.Vector(0, 0, 1), 1.1), False)
sketch11.addGeometry(Part.Circle(App.Vector(82.5, 0, 0), App.Vector(0, 0, 1), 1.1), False)
sketch11.addGeometry(Part.Circle(App.Vector(0, 82.5, 0), App.Vector(0, 0, 1), 1.1), False)
sketch11.addConstraint(Sketcher.Constraint("Equal", 0, 1))
sketch11.addConstraint(Sketcher.Constraint("Equal", 1, 2))
sketch11.addConstraint(Sketcher.Constraint("Equal", 2, 3))
sketch11.addConstraint(Sketcher.Constraint("Equal", 3, 4))
sketch11.addConstraint(Sketcher.Constraint("Equal", 4, 5))
sketch11.addConstraint(Sketcher.Constraint("Equal", 5, 6))
sketch11.addConstraint(Sketcher.Constraint("Equal", 6, 7))
sketch11.addConstraint(Sketcher.Constraint("Symmetric", 0, 3, 2, 3, -1, 1))
sketch11.addConstraint(Sketcher.Constraint("Symmetric", 1, 3, 3, 3, -1, 1))
sketch11.addConstraint(Sketcher.Constraint("Symmetric", 5, 3, 6, 3, -1, 1))
sketch11.addConstraint(Sketcher.Constraint("Symmetric", 4, 3, 7, 3, -1, 1))
sketch11.addConstraint(Sketcher.Constraint("Symmetric", 0, 3, 1, 3, -2))
sketch11.addConstraint(Sketcher.Constraint("PointOnObject", 4, 3, -2))
sketch11.addConstraint(Sketcher.Constraint("PointOnObject", 5, 3, -1))
sketch11.addConstraint(Sketcher.Constraint("Horizontal", 3, 3, 4, 3))
sketch11.addConstraint(Sketcher.Constraint("Vertical", 3, 3, 5, 3))
sketch11.addConstraint(Sketcher.Constraint("Diameter", 0, 2.2))
sketch11.addConstraint(Sketcher.Constraint("DistanceX", 0, 3, 1, 3, 165.0))
sketch11.addConstraint(Sketcher.Constraint("DistanceY", 2, 3, 1, 3, 165.0))
sketch11.setExpression("Constraints[16]", "Params.sketch11_diameter")
pocket8 = doc.addObject("PartDesign::Pocket", "Pocket007")
body.addObject(pocket8)
pocket8.Profile = sketch11
pocket8.Type = "ThroughAll"
pocket8.Reversed = True

# Sketch on XZ plane
sketch12 = doc.addObject("Sketcher::SketchObject", "Sketch011")
body.addObject(sketch12)
sketch12.AttachmentSupport = (doc.XZ_Plane, [""])
sketch12.MapMode = "FlatFace"
sketch12.AttachmentOffset = App.Placement(App.Vector(0, 0, -40), App.Rotation())
sketch12.addGeometry(Part.Circle(App.Vector(-82.5, 82.5, 0), App.Vector(0, 0, 1), 2.1), False)
sketch12.addGeometry(Part.Circle(App.Vector(-82.5, -82.5, 0), App.Vector(0, 0, 1), 2.1), False)
sketch12.addGeometry(Part.Circle(App.Vector(82.5, -82.5, 0), App.Vector(0, 0, 1), 2.1), False)
sketch12.addGeometry(Part.Circle(App.Vector(82.5, 82.5, 0), App.Vector(0, 0, 1), 2.1), False)
sketch12.addConstraint(Sketcher.Constraint("Equal", 0, 1))
sketch12.addConstraint(Sketcher.Constraint("Equal", 1, 2))
sketch12.addConstraint(Sketcher.Constraint("Equal", 2, 3))
sketch12.addConstraint(Sketcher.Constraint("Symmetric", 0, 3, 2, 3, -1, 1))
sketch12.addConstraint(Sketcher.Constraint("Symmetric", 1, 3, 3, 3, -1, 1))
sketch12.addConstraint(Sketcher.Constraint("Symmetric", 1, 3, 2, 3, -2))
sketch12.addConstraint(Sketcher.Constraint("Diameter", 0, 4.2))
sketch12.addConstraint(Sketcher.Constraint("DistanceY", 1, 3, 0, 3, 165.0))
sketch12.addConstraint(Sketcher.Constraint("DistanceX", 1, 3, 2, 3, 165.0))
sketch12.setExpression("Constraints[6]", "Params.sketch12_diameter")
pocket9 = doc.addObject("PartDesign::Pocket", "Pocket008")
body.addObject(pocket9)
pocket9.Profile = sketch12
pocket9.Type = "ThroughAll"
pocket9.Reversed = True

# Sketch on XY plane
sketch13 = doc.addObject("Sketcher::SketchObject", "Sketch012")
body.addObject(sketch13)
sketch13.AttachmentSupport = (doc.XY_Plane, [""])
sketch13.MapMode = "FlatFace"
sketch13.AttachmentOffset = App.Placement(App.Vector(0, 0, 92.5), App.Rotation())
sketch13.addGeometry(Part.LineSegment(App.Vector(-112.413334, 93.740228, 0), App.Vector(-112.413334, 0, 0)), False)
sketch13.addGeometry(Part.LineSegment(App.Vector(-112.413334, 0, 0), App.Vector(114.072029, 0, 0)), False)
sketch13.addGeometry(Part.LineSegment(App.Vector(114.072029, 0, 0), App.Vector(114.072029, 93.740228, 0)), False)
sketch13.addGeometry(Part.LineSegment(App.Vector(114.072029, 93.740228, 0), App.Vector(-112.413334, 93.740228, 0)), False)
sketch13.addConstraint(Sketcher.Constraint("Coincident", 0, 2, 1, 1))
sketch13.addConstraint(Sketcher.Constraint("Coincident", 1, 2, 2, 1))
sketch13.addConstraint(Sketcher.Constraint("Coincident", 2, 2, 3, 1))
sketch13.addConstraint(Sketcher.Constraint("Coincident", 3, 2, 0, 1))
sketch13.addConstraint(Sketcher.Constraint("Vertical", 0))
sketch13.addConstraint(Sketcher.Constraint("Horizontal", 1))
sketch13.addConstraint(Sketcher.Constraint("Vertical", 2))
sketch13.addConstraint(Sketcher.Constraint("Horizontal", 3))
sketch13.addConstraint(Sketcher.Constraint("PointOnObject", 0, 2, -1))
sketch13.addConstraint(Sketcher.Constraint("DistanceX", 1, 1, 1, 2, 226.485363))
sketch13.addConstraint(Sketcher.Constraint("DistanceY", 0, 2, 0, 1, 93.740228))
sketch13.addConstraint(Sketcher.Constraint("DistanceX", -1, 1, 1, 2, 114.072029))
pocket10 = doc.addObject("PartDesign::Pocket", "Pocket009")
body.addObject(pocket10)
pocket10.Profile = sketch13
pocket10.Type = "ThroughAll"

doc.recompute()
